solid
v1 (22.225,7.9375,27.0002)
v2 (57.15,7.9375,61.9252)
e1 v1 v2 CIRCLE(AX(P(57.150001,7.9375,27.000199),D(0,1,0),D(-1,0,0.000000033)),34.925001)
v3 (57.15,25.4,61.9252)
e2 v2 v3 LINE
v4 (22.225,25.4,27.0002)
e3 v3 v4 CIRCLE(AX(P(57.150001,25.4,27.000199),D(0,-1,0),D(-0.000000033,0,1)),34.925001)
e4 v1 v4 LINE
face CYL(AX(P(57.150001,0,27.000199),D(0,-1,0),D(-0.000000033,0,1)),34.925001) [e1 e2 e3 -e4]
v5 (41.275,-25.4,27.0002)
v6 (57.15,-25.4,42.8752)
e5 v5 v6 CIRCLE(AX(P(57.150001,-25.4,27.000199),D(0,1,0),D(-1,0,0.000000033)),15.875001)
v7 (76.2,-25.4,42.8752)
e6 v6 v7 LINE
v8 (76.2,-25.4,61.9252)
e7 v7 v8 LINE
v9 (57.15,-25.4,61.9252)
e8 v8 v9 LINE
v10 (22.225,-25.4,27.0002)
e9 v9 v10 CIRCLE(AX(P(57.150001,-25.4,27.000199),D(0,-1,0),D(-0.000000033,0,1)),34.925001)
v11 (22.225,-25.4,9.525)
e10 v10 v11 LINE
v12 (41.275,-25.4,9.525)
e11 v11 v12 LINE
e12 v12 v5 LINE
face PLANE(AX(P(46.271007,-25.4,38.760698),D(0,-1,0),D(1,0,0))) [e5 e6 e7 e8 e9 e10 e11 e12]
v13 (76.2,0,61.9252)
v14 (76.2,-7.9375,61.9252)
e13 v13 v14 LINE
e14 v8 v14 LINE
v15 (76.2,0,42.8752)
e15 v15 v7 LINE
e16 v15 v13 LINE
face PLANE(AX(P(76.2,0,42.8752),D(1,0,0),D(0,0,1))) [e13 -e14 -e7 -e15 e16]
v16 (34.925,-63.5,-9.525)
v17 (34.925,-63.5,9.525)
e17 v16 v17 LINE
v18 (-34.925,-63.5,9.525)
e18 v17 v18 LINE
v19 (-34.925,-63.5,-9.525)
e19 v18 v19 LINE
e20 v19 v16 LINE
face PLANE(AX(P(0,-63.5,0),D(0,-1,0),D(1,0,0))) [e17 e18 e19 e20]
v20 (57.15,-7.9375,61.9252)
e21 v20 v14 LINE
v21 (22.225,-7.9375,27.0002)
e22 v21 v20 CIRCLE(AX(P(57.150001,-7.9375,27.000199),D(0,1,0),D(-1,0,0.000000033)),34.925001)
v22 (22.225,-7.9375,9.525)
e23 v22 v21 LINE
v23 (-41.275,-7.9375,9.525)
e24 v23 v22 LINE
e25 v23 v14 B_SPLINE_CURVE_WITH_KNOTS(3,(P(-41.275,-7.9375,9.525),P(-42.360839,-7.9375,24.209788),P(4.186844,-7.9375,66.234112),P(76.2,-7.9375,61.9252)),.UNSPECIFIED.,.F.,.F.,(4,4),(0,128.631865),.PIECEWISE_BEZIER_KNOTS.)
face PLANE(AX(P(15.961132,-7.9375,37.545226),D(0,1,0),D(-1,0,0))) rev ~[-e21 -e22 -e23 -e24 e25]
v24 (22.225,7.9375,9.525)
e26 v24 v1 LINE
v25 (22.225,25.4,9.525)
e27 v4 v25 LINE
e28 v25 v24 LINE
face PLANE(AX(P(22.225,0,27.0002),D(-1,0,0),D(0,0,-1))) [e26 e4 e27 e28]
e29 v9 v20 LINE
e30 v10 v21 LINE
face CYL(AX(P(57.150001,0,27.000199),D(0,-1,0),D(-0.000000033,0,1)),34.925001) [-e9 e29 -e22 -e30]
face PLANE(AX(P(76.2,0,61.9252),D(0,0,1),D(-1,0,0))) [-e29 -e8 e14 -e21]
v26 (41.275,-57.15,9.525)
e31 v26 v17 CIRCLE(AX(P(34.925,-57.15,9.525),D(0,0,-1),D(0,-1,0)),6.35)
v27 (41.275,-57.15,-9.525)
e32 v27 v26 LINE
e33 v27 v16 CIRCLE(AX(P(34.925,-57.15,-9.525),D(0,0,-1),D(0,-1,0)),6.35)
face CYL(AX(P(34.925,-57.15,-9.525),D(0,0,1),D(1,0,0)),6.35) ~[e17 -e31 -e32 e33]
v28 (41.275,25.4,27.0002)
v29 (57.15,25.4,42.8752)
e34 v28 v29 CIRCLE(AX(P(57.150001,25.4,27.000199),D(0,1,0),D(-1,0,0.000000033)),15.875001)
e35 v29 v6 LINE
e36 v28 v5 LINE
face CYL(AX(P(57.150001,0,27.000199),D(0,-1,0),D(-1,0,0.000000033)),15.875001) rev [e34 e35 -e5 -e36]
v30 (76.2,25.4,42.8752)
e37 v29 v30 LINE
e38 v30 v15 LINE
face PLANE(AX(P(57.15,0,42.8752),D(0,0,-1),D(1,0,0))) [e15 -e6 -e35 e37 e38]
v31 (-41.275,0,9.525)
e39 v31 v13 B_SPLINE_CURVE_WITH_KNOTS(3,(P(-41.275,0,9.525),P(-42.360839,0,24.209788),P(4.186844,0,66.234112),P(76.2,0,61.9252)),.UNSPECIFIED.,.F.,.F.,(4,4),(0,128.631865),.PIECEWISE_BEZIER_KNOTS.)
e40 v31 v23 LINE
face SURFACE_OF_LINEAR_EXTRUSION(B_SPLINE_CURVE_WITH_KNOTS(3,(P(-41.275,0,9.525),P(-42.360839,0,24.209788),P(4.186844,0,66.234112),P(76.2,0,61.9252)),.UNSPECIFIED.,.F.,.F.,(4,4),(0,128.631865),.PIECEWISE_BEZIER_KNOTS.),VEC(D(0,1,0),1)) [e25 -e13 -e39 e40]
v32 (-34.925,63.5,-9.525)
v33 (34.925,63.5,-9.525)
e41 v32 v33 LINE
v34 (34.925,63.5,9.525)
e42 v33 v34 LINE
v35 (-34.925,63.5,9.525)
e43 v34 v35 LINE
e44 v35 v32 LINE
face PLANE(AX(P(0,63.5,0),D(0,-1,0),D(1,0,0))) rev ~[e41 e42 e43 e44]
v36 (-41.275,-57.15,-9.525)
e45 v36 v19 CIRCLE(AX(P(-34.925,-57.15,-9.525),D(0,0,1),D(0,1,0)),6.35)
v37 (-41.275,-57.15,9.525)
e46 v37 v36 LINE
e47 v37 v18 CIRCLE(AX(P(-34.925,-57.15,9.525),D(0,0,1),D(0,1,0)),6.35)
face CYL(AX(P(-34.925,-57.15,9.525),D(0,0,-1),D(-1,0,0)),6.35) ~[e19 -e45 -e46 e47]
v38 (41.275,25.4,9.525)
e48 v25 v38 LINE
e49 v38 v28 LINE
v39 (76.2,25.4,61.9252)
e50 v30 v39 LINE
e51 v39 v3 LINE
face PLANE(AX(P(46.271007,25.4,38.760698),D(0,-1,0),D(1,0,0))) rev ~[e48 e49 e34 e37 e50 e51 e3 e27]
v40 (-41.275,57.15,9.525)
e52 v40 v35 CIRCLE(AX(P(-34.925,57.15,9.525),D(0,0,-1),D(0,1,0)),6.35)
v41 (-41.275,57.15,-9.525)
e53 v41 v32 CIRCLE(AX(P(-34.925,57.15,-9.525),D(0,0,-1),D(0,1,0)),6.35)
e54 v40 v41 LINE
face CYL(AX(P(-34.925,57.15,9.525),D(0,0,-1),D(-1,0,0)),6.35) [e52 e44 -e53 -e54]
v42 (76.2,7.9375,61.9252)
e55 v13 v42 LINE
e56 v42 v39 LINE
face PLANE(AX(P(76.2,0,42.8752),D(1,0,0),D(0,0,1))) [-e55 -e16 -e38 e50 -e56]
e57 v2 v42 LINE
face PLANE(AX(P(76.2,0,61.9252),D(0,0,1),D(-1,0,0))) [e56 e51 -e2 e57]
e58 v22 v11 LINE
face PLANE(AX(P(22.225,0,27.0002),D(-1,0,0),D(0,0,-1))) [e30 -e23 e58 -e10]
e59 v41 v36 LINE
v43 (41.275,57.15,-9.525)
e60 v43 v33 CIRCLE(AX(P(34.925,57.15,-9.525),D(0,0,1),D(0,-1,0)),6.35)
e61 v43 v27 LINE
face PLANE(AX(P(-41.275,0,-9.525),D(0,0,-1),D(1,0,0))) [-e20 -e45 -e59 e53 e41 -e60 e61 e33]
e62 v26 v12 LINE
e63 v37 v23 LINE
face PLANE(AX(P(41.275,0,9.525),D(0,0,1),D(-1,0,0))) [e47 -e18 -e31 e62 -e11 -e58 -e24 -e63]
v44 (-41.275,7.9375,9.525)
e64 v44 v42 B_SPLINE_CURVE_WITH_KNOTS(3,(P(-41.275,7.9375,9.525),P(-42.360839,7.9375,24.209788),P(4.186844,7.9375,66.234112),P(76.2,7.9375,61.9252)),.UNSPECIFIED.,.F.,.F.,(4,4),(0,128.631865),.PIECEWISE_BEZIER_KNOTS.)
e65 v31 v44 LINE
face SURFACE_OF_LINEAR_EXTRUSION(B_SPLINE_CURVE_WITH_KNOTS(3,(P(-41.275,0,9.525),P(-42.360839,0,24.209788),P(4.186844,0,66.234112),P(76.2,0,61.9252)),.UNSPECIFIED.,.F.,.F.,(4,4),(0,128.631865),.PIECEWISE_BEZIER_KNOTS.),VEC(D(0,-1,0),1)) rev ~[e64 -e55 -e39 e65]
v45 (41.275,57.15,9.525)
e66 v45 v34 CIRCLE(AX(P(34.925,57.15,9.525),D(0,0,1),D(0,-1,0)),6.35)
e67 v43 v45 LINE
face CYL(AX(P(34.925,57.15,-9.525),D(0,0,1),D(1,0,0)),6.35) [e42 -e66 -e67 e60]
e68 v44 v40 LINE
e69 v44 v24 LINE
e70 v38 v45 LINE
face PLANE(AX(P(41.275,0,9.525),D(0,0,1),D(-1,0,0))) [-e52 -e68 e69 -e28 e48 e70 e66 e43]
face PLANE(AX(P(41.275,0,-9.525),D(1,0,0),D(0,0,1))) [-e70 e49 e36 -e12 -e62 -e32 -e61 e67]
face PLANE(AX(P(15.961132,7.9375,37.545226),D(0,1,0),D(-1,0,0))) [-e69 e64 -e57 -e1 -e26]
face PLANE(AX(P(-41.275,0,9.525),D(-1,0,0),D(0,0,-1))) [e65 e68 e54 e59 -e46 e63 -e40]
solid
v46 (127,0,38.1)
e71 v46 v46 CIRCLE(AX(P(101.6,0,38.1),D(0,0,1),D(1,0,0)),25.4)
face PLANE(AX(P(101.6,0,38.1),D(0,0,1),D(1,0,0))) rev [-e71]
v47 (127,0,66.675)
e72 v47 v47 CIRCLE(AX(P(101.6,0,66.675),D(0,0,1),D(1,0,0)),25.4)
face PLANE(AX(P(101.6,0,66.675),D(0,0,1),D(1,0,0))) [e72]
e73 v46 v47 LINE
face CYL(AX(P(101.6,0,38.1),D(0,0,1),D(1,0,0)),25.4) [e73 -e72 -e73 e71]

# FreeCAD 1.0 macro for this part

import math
import FreeCAD as App
import Part
import Sketcher
from FreeCAD import Vector
Q = App.Units.Quantity


def edges_at(feature, points):
    """Names of the edges that pass closest to the given points."""
    edges = feature.Shape.Edges
    near = lambda p: min(range(len(edges)), key=lambda i: edges[i].distToShape(Part.Vertex(*p))[0])
    return sorted({f"Edge{near(p) + 1}" for p in points})


def add_polygon(sketch, points):
    """Adds a closed chain of lines whose ends are joined by coincident constraints."""
    first, n = sketch.GeometryCount, len(points)
    for a, b in zip(points, points[1:] + points[:1]):
        sketch.addGeometry(Part.LineSegment(App.Vector(*a, 0), App.Vector(*b, 0)), False)
    for i in range(n):
        sketch.addConstraint(Sketcher.Constraint("Coincident", first + i, 2, first + (i + 1) % n, 1))

doc = App.newDocument("Part")
body = doc.addObject("PartDesign::Body", "Body")
body.AllowCompound = True

# Sketch on XZ plane
sketch1 = body.newObject("Sketcher::SketchObject", "Sketch")
sketch1.AttachmentSupport = (doc.getObject("XZ_Plane"), [""])
sketch1.MapMode = "FlatFace"
add_polygon(sketch1, [(-41, 10), (-41, -10), (41, -10), (41, 10)])  # lines 0-3
sketch1.addConstraint([
    Sketcher.Constraint("Vertical", 0),
    Sketcher.Constraint("Horizontal", 1),
    Sketcher.Constraint("Vertical", 2),
    Sketcher.Constraint("Horizontal", 3),
    Sketcher.Constraint("Symmetric", 0, 2, 2, 2, -1, 1),
    Sketcher.Constraint("DistanceX", 1, 1, 1, 2, Q("3.25 in")),
    Sketcher.Constraint("DistanceY", 0, 2, 0, 1, Q("0.75 in")),
])
pad1 = body.newObject("PartDesign::Pad", "Pad")
pad1.Profile = sketch1
pad1.Length = Q("5 in")
pad1.Midplane = True

# Sketch on XZ plane
sketch2 = body.newObject("Sketcher::SketchObject", "Sketch001")
sketch2.AttachmentSupport = (doc.getObject("XZ_Plane"), [""])
sketch2.MapMode = "FlatFace"
sketch2.addGeometry([
    Part.LineSegment(Vector(22, 27, 0), Vector(22, 10, 0)),  # 0
    Part.LineSegment(Vector(22, 10, 0), Vector(41, 10, 0)),  # 1
    Part.LineSegment(Vector(41, 10, 0), Vector(41, 27, 0)),  # 2
    Part.ArcOfCircle(Part.Circle(Vector(57, 27, 0), Vector(0, 0, 1), 16), math.radians(90), math.radians(180)),  # 3
    Part.LineSegment(Vector(57, 43, 0), Vector(76, 43, 0)),  # 4
    Part.LineSegment(Vector(76, 43, 0), Vector(76, 62, 0)),  # 5
    Part.LineSegment(Vector(76, 62, 0), Vector(57, 62, 0)),  # 6
    Part.ArcOfCircle(Part.Circle(Vector(57, 27, 0), Vector(0, 0, 1), 35), math.radians(90), math.radians(180)),  # 7
], False)
sketch2.addConstraint([
    Sketcher.Constraint("Coincident", 0, 2, 1, 1),
    Sketcher.Constraint("Coincident", 1, 2, 2, 1),
    Sketcher.Constraint("Tangent", 2, 2, 3, 2),
    Sketcher.Constraint("Tangent", 3, 1, 4, 1),
    Sketcher.Constraint("Coincident", 4, 2, 5, 1),
    Sketcher.Constraint("Coincident", 5, 2, 6, 1),
    Sketcher.Constraint("Tangent", 6, 2, 7, 1),
    Sketcher.Constraint("Tangent", 7, 2, 0, 1),
    Sketcher.Constraint("Vertical", 0),
    Sketcher.Constraint("Horizontal", 1),
    Sketcher.Constraint("Vertical", 2),
    Sketcher.Constraint("Horizontal", 4),
    Sketcher.Constraint("Vertical", 5),
    Sketcher.Constraint("Horizontal", 6),
    Sketcher.Constraint("Coincident", 7, 3, 3, 3),
    Sketcher.Constraint("Equal", 1, 4),
    Sketcher.Constraint("DistanceX", -1, 1, 4, 2, Q("3 in")),
    Sketcher.Constraint("Radius", 3, Q("0.625 in")),
    Sketcher.Constraint("Radius", 7, Q("1.375 in")),
    Sketcher.Constraint("DistanceY", 0, 2, 0, 1, Q("0.688 in")),
    Sketcher.Constraint("DistanceY", -1, 1, 3, 3, Q("1.063 in")),
])
pad2 = body.newObject("PartDesign::Pad", "Pad001")
pad2.Profile = sketch2
pad2.Length = Q("2 in")
pad2.Midplane = True

# Sketch on XZ plane
sketch3 = body.newObject("Sketcher::SketchObject", "Sketch002")
sketch3.AttachmentSupport = (doc.getObject("XZ_Plane"), [""])
sketch3.MapMode = "FlatFace"
sketch3.addGeometry([
    Part.BSplineCurve([Vector(-41.275, 9.525, 0), Vector(-42.360839, 24.209788, 0), Vector(4.186844, 66.234112, 0), Vector(76.2, 61.9252, 0)], [4, 4], [0, 128.631865], False, 3, [1, 1, 1, 1], False),  # 0
    Part.LineSegment(Vector(-41.275, 9.525, 0), Vector(22.225, 9.525, 0)),  # 1
    Part.LineSegment(Vector(22.225, 9.525, 0), Vector(22.225, 27.0002, 0)),  # 2
    Part.ArcOfCircle(Part.Circle(Vector(57.150001, 27.000199, 0), Vector(0, 0, 1), 34.925001), math.radians(90.000002), math.radians(179.999998)),  # 3
    Part.LineSegment(Vector(57.15, 61.9252, 0), Vector(76.2, 61.9252, 0)),  # 4
], False)
sketch3.addConstraint([
    Sketcher.Constraint("Block", 0),
    Sketcher.Constraint("Coincident", 0, 1, 1, 1),
    Sketcher.Constraint("Coincident", 1, 2, 2, 1),
    Sketcher.Constraint("Tangent", 2, 2, 3, 2),
    Sketcher.Constraint("Tangent", 3, 1, 4, 1),
    Sketcher.Constraint("Coincident", 4, 2, 0, 2),
    Sketcher.Constraint("Horizontal", 1),
    Sketcher.Constraint("Vertical", 2),
    Sketcher.Constraint("Horizontal", 4),
    Sketcher.Constraint("DistanceX", 1, 1, 1, 2, Q("2.5 in")),
    Sketcher.Constraint("Radius", 3, Q("1.375 in")),
])
pad3 = body.newObject("PartDesign::Pad", "Pad002")
pad3.Profile = sketch3
pad3.Length = Q("0.625 in")
pad3.Midplane = True

# Sketch on XZ plane
sketch4 = body.newObject("Sketcher::SketchObject", "Sketch003")
sketch4.AttachmentSupport = (doc.getObject("XZ_Plane"), [""])
sketch4.MapMode = "FlatFace"
add_polygon(sketch4, [(102, 67), (102, 38), (127, 38), (127, 67)])  # lines 0-3
sketch4.addGeometry(Part.LineSegment(Vector(102, 38, 0), Vector(102, 67, 0)), True)  # axis
sketch4.addConstraint([
    Sketcher.Constraint("Vertical", 0),
    Sketcher.Constraint("Horizontal", 1),
    Sketcher.Constraint("Vertical", 2),
    Sketcher.Constraint("Horizontal", 3),
    Sketcher.Constraint("Vertical", 4),
    Sketcher.Constraint("Coincident", 4, 1, 0, 2),
    Sketcher.Constraint("Horizontal", 2, 2, 4, 2),
    Sketcher.Constraint("DistanceX", 1, 1, 1, 2, Q("1 in")),
    Sketcher.Constraint("DistanceX", -1, 1, 0, 2, Q("4 in")),
    Sketcher.Constraint("DistanceY", -1, 1, 0, 2, Q("1.5 in")),
    Sketcher.Constraint("DistanceY", 0, 2, 0, 1, Q("1.125 in")),
])
revolution = body.newObject("PartDesign::Revolution", "Revolution")
revolution.Profile = sketch4
revolution.ReferenceAxis = (sketch4, ["Axis0"])
revolution.Angle = 360
doc.recompute()

fillet = body.newObject("PartDesign::Fillet", "Fillet")
fillet.Base = (revolution, edges_at(revolution, [
    (41.275, -63.5, 0),
    (-41.275, -63.5, 0),
    (-41.275, 63.5, 0),
    (41.275, 63.5, 0),
]))
fillet.Radius = Q("0.25 in")

doc.recompute()
